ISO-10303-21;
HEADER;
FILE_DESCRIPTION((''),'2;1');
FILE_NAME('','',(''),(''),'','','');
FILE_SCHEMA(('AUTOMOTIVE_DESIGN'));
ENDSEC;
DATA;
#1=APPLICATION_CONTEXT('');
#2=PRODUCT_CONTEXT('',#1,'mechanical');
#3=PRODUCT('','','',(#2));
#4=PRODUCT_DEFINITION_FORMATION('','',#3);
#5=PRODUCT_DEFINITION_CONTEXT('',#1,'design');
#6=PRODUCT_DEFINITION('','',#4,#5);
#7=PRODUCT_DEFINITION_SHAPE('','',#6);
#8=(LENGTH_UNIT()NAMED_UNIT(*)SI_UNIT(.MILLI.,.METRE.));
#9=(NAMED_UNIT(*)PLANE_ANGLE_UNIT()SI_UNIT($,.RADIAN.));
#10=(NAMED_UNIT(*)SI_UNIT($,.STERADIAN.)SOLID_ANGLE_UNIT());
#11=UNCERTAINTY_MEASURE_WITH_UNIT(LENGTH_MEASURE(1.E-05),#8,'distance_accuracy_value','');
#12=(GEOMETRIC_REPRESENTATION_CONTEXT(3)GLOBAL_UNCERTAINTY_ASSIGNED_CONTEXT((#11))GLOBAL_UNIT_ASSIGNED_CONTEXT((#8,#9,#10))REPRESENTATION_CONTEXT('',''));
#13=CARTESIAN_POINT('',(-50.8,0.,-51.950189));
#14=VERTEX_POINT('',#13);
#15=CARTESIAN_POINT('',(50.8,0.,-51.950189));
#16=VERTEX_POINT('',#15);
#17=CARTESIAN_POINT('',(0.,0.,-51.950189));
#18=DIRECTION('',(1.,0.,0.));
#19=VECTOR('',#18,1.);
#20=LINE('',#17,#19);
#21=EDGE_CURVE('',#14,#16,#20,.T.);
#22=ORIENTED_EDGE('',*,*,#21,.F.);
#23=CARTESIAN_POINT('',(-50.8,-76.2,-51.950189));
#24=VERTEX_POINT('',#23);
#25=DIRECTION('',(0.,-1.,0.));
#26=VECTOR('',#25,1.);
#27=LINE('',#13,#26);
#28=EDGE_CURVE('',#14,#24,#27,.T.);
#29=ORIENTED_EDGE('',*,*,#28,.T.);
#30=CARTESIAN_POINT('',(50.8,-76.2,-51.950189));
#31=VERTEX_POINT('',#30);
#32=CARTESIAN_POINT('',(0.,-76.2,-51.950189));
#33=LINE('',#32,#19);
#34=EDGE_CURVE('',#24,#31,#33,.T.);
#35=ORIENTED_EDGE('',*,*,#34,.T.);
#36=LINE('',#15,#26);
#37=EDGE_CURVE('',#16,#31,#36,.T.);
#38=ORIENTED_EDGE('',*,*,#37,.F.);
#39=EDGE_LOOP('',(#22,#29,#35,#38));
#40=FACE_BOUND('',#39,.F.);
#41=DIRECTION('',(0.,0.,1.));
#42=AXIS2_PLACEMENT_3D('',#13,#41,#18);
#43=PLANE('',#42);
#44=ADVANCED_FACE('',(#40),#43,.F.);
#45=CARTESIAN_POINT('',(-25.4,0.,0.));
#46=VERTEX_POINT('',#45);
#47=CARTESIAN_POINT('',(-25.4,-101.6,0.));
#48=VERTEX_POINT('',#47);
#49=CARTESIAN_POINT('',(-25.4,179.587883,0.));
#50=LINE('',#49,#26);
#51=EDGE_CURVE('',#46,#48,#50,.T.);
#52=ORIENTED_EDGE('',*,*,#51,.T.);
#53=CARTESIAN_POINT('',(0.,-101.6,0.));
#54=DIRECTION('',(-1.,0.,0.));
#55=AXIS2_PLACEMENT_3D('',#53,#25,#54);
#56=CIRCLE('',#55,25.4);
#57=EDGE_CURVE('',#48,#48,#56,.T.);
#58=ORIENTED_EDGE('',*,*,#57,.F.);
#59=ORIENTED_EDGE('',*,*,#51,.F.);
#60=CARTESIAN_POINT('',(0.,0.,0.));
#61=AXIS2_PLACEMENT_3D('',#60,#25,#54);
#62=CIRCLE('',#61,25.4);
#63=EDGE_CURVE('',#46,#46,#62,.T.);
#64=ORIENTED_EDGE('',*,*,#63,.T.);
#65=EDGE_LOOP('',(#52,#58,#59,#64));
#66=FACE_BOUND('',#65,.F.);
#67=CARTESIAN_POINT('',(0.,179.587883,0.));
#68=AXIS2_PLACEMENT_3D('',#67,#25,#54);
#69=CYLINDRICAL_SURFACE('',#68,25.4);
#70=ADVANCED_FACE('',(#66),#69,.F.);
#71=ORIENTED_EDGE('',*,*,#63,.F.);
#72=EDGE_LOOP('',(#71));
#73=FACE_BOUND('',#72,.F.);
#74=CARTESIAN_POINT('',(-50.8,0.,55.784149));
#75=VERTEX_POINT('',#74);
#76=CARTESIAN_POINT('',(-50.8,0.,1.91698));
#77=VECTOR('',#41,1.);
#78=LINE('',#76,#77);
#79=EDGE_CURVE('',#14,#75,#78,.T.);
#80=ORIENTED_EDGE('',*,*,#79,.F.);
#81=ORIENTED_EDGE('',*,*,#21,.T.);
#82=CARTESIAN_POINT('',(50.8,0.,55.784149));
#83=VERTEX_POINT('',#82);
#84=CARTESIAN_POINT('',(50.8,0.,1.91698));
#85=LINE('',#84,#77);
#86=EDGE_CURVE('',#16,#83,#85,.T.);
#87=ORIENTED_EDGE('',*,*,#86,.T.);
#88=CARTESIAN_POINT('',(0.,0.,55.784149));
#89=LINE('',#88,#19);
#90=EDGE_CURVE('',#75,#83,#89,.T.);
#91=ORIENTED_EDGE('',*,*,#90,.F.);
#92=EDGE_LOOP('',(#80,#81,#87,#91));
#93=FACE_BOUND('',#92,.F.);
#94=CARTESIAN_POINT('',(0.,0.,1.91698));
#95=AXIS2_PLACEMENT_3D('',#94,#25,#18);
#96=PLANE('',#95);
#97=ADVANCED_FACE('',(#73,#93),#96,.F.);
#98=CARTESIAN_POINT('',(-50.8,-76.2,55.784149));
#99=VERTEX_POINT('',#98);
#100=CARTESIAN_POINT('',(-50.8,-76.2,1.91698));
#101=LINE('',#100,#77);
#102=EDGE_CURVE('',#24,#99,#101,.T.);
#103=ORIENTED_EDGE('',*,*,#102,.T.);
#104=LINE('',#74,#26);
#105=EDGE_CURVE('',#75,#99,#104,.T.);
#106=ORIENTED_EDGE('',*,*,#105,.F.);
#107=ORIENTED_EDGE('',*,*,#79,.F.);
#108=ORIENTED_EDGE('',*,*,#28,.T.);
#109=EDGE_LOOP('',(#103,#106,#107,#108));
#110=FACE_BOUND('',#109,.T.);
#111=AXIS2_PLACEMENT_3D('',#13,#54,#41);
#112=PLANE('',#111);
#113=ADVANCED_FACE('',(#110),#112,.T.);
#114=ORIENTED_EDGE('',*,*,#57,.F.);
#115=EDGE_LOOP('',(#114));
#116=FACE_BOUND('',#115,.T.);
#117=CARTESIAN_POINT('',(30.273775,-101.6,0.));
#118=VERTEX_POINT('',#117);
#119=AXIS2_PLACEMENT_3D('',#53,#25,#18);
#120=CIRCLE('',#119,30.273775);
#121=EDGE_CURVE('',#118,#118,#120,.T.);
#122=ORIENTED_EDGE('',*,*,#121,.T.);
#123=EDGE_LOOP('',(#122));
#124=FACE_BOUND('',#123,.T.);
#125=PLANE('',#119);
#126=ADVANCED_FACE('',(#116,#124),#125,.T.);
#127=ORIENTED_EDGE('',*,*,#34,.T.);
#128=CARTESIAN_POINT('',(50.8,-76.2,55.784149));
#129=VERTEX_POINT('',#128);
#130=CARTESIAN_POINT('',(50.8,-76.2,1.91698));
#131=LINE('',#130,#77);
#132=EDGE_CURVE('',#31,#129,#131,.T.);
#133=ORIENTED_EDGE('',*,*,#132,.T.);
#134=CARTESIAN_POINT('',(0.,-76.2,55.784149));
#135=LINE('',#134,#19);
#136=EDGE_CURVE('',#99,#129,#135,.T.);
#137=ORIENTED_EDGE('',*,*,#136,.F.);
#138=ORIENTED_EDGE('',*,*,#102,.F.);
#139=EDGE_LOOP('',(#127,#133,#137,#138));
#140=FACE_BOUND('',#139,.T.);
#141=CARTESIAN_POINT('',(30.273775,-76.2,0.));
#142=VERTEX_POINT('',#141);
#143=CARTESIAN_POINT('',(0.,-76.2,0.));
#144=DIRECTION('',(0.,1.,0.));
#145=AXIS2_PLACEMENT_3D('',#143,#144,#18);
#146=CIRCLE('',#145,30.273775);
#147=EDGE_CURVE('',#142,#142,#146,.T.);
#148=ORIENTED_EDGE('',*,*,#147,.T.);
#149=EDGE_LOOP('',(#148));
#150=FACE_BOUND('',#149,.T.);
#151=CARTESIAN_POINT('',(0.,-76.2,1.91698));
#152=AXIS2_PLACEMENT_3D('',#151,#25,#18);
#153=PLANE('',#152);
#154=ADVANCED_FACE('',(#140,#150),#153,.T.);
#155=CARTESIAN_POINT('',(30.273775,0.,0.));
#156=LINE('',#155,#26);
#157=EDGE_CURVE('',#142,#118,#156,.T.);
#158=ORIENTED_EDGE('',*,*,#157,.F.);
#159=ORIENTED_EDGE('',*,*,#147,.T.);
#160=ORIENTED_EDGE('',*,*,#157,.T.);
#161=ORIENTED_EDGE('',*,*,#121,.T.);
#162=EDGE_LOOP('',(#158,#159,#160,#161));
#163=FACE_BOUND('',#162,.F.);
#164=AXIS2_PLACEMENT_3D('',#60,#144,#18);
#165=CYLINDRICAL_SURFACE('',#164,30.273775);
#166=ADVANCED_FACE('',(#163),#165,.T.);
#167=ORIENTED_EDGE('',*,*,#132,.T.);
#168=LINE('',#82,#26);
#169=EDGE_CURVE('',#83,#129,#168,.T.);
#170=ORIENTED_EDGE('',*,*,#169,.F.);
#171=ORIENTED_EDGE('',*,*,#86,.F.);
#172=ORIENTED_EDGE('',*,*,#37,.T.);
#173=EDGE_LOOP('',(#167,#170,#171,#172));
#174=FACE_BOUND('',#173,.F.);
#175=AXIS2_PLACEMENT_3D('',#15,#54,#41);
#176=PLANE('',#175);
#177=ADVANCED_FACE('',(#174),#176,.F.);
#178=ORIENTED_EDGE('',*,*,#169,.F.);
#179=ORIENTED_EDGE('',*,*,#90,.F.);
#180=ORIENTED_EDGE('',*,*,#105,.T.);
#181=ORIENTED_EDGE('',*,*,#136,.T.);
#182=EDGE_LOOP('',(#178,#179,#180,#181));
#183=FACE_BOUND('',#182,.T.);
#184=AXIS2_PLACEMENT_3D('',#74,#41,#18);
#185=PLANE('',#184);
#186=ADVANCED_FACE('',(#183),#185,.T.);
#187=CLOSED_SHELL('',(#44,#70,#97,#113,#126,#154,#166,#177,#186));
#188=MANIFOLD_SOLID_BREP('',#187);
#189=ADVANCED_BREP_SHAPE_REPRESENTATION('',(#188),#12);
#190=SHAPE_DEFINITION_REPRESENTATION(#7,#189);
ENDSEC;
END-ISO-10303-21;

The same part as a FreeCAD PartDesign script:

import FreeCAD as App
import Part
import Sketcher

V = App.Vector
Q = App.Units.Quantity


def add_polygon(sketch, points):
    """Adds a closed chain of lines whose ends are joined by coincident constraints."""
    first, n = sketch.GeometryCount, len(points)
    for a, b in zip(points, points[1:] + points[:1]):
        sketch.addGeometry(Part.LineSegment(App.Vector(*a, 0), App.Vector(*b, 0)), False)
    for i in range(n):
        sketch.addConstraint(Sketcher.Constraint("Coincident", first + i, 2, first + (i + 1) % n, 1))

doc = App.newDocument("Part")
body = doc.addObject("PartDesign::Body", "Body")

# Sketch on XZ plane
sketch1 = doc.addObject("Sketcher::SketchObject", "Sketch")
body.addObject(sketch1)
sketch1.AttachmentSupport = (doc.XZ_Plane, [""])
sketch1.MapMode = "FlatFace"
add_polygon(sketch1, [(-50.8, 55.784149), (-50.8, -51.950189), (50.8, -51.950189), (50.8, 55.784149)])  # lines 0-3
sketch1.addGeometry(Part.Circle(V(0, 0, 0), V(0, 0, 1), 24.735745), False)  # 4
sketch1.addConstraint([
    Sketcher.Constraint("Vertical", 0),
    Sketcher.Constraint("Horizontal", 1),
    Sketcher.Constraint("Vertical", 2),
    Sketcher.Constraint("Horizontal", 3),
    Sketcher.Constraint("Coincident", 4, 3, -1, 1),
    Sketcher.Constraint("DistanceX", 1, 1, 1, 2, Q("4 in")),
    Sketcher.Constraint("DistanceX", 0, 2, -1, 1, Q("2 in")),
    Sketcher.Constraint("Diameter", 4, Q("49.47149 mm")),
    Sketcher.Constraint("DistanceY", 0, 2, 0, 1, Q("107.734338 mm")),
    Sketcher.Constraint("DistanceY", 0, 2, -1, 1, Q("51.950189 mm")),
])
pad1 = doc.addObject("PartDesign::Pad", "Pad")
body.addObject(pad1)
pad1.Profile = sketch1
pad1.Length = Q("3 in")

# Sketch on XZ plane
sketch2 = doc.addObject("Sketcher::SketchObject", "Sketch001")
body.addObject(sketch2)
sketch2.AttachmentSupport = (doc.XZ_Plane, [""])
sketch2.MapMode = "FlatFace"
sketch2.addGeometry(Part.Circle(V(0, 0, 0), V(0, 0, 1), 30.273775), False)
sketch2.addConstraint([
    Sketcher.Constraint("Coincident", 0, 3, -1, 1),
    Sketcher.Constraint("Diameter", 0, Q("60.54755 mm")),
])
pad2 = doc.addObject("PartDesign::Pad", "Pad001")
body.addObject(pad2)
pad2.Profile = sketch2
pad2.Length = Q("4 in")

# Sketch on XZ plane
sketch3 = doc.addObject("Sketcher::SketchObject", "Sketch002")
body.addObject(sketch3)
sketch3.AttachmentSupport = (doc.XZ_Plane, [""])
sketch3.MapMode = "FlatFace"
sketch3.addGeometry(Part.Circle(V(0, 0, 0), V(0, 0, 1), 25.4), False)
sketch3.addConstraint([
    Sketcher.Constraint("Coincident", 0, 3, -1, 1),
    Sketcher.Constraint("Diameter", 0, Q("2 in")),
])
doc.recompute()
hole = doc.addObject("PartDesign::Hole", "Hole")
body.addObject(hole)
hole.Profile = sketch3
hole.ThreadType = "None"
hole.Diameter = Q("2 in")
hole.DepthType = "ThroughAll"
hole.Reversed = True

doc.recompute()
